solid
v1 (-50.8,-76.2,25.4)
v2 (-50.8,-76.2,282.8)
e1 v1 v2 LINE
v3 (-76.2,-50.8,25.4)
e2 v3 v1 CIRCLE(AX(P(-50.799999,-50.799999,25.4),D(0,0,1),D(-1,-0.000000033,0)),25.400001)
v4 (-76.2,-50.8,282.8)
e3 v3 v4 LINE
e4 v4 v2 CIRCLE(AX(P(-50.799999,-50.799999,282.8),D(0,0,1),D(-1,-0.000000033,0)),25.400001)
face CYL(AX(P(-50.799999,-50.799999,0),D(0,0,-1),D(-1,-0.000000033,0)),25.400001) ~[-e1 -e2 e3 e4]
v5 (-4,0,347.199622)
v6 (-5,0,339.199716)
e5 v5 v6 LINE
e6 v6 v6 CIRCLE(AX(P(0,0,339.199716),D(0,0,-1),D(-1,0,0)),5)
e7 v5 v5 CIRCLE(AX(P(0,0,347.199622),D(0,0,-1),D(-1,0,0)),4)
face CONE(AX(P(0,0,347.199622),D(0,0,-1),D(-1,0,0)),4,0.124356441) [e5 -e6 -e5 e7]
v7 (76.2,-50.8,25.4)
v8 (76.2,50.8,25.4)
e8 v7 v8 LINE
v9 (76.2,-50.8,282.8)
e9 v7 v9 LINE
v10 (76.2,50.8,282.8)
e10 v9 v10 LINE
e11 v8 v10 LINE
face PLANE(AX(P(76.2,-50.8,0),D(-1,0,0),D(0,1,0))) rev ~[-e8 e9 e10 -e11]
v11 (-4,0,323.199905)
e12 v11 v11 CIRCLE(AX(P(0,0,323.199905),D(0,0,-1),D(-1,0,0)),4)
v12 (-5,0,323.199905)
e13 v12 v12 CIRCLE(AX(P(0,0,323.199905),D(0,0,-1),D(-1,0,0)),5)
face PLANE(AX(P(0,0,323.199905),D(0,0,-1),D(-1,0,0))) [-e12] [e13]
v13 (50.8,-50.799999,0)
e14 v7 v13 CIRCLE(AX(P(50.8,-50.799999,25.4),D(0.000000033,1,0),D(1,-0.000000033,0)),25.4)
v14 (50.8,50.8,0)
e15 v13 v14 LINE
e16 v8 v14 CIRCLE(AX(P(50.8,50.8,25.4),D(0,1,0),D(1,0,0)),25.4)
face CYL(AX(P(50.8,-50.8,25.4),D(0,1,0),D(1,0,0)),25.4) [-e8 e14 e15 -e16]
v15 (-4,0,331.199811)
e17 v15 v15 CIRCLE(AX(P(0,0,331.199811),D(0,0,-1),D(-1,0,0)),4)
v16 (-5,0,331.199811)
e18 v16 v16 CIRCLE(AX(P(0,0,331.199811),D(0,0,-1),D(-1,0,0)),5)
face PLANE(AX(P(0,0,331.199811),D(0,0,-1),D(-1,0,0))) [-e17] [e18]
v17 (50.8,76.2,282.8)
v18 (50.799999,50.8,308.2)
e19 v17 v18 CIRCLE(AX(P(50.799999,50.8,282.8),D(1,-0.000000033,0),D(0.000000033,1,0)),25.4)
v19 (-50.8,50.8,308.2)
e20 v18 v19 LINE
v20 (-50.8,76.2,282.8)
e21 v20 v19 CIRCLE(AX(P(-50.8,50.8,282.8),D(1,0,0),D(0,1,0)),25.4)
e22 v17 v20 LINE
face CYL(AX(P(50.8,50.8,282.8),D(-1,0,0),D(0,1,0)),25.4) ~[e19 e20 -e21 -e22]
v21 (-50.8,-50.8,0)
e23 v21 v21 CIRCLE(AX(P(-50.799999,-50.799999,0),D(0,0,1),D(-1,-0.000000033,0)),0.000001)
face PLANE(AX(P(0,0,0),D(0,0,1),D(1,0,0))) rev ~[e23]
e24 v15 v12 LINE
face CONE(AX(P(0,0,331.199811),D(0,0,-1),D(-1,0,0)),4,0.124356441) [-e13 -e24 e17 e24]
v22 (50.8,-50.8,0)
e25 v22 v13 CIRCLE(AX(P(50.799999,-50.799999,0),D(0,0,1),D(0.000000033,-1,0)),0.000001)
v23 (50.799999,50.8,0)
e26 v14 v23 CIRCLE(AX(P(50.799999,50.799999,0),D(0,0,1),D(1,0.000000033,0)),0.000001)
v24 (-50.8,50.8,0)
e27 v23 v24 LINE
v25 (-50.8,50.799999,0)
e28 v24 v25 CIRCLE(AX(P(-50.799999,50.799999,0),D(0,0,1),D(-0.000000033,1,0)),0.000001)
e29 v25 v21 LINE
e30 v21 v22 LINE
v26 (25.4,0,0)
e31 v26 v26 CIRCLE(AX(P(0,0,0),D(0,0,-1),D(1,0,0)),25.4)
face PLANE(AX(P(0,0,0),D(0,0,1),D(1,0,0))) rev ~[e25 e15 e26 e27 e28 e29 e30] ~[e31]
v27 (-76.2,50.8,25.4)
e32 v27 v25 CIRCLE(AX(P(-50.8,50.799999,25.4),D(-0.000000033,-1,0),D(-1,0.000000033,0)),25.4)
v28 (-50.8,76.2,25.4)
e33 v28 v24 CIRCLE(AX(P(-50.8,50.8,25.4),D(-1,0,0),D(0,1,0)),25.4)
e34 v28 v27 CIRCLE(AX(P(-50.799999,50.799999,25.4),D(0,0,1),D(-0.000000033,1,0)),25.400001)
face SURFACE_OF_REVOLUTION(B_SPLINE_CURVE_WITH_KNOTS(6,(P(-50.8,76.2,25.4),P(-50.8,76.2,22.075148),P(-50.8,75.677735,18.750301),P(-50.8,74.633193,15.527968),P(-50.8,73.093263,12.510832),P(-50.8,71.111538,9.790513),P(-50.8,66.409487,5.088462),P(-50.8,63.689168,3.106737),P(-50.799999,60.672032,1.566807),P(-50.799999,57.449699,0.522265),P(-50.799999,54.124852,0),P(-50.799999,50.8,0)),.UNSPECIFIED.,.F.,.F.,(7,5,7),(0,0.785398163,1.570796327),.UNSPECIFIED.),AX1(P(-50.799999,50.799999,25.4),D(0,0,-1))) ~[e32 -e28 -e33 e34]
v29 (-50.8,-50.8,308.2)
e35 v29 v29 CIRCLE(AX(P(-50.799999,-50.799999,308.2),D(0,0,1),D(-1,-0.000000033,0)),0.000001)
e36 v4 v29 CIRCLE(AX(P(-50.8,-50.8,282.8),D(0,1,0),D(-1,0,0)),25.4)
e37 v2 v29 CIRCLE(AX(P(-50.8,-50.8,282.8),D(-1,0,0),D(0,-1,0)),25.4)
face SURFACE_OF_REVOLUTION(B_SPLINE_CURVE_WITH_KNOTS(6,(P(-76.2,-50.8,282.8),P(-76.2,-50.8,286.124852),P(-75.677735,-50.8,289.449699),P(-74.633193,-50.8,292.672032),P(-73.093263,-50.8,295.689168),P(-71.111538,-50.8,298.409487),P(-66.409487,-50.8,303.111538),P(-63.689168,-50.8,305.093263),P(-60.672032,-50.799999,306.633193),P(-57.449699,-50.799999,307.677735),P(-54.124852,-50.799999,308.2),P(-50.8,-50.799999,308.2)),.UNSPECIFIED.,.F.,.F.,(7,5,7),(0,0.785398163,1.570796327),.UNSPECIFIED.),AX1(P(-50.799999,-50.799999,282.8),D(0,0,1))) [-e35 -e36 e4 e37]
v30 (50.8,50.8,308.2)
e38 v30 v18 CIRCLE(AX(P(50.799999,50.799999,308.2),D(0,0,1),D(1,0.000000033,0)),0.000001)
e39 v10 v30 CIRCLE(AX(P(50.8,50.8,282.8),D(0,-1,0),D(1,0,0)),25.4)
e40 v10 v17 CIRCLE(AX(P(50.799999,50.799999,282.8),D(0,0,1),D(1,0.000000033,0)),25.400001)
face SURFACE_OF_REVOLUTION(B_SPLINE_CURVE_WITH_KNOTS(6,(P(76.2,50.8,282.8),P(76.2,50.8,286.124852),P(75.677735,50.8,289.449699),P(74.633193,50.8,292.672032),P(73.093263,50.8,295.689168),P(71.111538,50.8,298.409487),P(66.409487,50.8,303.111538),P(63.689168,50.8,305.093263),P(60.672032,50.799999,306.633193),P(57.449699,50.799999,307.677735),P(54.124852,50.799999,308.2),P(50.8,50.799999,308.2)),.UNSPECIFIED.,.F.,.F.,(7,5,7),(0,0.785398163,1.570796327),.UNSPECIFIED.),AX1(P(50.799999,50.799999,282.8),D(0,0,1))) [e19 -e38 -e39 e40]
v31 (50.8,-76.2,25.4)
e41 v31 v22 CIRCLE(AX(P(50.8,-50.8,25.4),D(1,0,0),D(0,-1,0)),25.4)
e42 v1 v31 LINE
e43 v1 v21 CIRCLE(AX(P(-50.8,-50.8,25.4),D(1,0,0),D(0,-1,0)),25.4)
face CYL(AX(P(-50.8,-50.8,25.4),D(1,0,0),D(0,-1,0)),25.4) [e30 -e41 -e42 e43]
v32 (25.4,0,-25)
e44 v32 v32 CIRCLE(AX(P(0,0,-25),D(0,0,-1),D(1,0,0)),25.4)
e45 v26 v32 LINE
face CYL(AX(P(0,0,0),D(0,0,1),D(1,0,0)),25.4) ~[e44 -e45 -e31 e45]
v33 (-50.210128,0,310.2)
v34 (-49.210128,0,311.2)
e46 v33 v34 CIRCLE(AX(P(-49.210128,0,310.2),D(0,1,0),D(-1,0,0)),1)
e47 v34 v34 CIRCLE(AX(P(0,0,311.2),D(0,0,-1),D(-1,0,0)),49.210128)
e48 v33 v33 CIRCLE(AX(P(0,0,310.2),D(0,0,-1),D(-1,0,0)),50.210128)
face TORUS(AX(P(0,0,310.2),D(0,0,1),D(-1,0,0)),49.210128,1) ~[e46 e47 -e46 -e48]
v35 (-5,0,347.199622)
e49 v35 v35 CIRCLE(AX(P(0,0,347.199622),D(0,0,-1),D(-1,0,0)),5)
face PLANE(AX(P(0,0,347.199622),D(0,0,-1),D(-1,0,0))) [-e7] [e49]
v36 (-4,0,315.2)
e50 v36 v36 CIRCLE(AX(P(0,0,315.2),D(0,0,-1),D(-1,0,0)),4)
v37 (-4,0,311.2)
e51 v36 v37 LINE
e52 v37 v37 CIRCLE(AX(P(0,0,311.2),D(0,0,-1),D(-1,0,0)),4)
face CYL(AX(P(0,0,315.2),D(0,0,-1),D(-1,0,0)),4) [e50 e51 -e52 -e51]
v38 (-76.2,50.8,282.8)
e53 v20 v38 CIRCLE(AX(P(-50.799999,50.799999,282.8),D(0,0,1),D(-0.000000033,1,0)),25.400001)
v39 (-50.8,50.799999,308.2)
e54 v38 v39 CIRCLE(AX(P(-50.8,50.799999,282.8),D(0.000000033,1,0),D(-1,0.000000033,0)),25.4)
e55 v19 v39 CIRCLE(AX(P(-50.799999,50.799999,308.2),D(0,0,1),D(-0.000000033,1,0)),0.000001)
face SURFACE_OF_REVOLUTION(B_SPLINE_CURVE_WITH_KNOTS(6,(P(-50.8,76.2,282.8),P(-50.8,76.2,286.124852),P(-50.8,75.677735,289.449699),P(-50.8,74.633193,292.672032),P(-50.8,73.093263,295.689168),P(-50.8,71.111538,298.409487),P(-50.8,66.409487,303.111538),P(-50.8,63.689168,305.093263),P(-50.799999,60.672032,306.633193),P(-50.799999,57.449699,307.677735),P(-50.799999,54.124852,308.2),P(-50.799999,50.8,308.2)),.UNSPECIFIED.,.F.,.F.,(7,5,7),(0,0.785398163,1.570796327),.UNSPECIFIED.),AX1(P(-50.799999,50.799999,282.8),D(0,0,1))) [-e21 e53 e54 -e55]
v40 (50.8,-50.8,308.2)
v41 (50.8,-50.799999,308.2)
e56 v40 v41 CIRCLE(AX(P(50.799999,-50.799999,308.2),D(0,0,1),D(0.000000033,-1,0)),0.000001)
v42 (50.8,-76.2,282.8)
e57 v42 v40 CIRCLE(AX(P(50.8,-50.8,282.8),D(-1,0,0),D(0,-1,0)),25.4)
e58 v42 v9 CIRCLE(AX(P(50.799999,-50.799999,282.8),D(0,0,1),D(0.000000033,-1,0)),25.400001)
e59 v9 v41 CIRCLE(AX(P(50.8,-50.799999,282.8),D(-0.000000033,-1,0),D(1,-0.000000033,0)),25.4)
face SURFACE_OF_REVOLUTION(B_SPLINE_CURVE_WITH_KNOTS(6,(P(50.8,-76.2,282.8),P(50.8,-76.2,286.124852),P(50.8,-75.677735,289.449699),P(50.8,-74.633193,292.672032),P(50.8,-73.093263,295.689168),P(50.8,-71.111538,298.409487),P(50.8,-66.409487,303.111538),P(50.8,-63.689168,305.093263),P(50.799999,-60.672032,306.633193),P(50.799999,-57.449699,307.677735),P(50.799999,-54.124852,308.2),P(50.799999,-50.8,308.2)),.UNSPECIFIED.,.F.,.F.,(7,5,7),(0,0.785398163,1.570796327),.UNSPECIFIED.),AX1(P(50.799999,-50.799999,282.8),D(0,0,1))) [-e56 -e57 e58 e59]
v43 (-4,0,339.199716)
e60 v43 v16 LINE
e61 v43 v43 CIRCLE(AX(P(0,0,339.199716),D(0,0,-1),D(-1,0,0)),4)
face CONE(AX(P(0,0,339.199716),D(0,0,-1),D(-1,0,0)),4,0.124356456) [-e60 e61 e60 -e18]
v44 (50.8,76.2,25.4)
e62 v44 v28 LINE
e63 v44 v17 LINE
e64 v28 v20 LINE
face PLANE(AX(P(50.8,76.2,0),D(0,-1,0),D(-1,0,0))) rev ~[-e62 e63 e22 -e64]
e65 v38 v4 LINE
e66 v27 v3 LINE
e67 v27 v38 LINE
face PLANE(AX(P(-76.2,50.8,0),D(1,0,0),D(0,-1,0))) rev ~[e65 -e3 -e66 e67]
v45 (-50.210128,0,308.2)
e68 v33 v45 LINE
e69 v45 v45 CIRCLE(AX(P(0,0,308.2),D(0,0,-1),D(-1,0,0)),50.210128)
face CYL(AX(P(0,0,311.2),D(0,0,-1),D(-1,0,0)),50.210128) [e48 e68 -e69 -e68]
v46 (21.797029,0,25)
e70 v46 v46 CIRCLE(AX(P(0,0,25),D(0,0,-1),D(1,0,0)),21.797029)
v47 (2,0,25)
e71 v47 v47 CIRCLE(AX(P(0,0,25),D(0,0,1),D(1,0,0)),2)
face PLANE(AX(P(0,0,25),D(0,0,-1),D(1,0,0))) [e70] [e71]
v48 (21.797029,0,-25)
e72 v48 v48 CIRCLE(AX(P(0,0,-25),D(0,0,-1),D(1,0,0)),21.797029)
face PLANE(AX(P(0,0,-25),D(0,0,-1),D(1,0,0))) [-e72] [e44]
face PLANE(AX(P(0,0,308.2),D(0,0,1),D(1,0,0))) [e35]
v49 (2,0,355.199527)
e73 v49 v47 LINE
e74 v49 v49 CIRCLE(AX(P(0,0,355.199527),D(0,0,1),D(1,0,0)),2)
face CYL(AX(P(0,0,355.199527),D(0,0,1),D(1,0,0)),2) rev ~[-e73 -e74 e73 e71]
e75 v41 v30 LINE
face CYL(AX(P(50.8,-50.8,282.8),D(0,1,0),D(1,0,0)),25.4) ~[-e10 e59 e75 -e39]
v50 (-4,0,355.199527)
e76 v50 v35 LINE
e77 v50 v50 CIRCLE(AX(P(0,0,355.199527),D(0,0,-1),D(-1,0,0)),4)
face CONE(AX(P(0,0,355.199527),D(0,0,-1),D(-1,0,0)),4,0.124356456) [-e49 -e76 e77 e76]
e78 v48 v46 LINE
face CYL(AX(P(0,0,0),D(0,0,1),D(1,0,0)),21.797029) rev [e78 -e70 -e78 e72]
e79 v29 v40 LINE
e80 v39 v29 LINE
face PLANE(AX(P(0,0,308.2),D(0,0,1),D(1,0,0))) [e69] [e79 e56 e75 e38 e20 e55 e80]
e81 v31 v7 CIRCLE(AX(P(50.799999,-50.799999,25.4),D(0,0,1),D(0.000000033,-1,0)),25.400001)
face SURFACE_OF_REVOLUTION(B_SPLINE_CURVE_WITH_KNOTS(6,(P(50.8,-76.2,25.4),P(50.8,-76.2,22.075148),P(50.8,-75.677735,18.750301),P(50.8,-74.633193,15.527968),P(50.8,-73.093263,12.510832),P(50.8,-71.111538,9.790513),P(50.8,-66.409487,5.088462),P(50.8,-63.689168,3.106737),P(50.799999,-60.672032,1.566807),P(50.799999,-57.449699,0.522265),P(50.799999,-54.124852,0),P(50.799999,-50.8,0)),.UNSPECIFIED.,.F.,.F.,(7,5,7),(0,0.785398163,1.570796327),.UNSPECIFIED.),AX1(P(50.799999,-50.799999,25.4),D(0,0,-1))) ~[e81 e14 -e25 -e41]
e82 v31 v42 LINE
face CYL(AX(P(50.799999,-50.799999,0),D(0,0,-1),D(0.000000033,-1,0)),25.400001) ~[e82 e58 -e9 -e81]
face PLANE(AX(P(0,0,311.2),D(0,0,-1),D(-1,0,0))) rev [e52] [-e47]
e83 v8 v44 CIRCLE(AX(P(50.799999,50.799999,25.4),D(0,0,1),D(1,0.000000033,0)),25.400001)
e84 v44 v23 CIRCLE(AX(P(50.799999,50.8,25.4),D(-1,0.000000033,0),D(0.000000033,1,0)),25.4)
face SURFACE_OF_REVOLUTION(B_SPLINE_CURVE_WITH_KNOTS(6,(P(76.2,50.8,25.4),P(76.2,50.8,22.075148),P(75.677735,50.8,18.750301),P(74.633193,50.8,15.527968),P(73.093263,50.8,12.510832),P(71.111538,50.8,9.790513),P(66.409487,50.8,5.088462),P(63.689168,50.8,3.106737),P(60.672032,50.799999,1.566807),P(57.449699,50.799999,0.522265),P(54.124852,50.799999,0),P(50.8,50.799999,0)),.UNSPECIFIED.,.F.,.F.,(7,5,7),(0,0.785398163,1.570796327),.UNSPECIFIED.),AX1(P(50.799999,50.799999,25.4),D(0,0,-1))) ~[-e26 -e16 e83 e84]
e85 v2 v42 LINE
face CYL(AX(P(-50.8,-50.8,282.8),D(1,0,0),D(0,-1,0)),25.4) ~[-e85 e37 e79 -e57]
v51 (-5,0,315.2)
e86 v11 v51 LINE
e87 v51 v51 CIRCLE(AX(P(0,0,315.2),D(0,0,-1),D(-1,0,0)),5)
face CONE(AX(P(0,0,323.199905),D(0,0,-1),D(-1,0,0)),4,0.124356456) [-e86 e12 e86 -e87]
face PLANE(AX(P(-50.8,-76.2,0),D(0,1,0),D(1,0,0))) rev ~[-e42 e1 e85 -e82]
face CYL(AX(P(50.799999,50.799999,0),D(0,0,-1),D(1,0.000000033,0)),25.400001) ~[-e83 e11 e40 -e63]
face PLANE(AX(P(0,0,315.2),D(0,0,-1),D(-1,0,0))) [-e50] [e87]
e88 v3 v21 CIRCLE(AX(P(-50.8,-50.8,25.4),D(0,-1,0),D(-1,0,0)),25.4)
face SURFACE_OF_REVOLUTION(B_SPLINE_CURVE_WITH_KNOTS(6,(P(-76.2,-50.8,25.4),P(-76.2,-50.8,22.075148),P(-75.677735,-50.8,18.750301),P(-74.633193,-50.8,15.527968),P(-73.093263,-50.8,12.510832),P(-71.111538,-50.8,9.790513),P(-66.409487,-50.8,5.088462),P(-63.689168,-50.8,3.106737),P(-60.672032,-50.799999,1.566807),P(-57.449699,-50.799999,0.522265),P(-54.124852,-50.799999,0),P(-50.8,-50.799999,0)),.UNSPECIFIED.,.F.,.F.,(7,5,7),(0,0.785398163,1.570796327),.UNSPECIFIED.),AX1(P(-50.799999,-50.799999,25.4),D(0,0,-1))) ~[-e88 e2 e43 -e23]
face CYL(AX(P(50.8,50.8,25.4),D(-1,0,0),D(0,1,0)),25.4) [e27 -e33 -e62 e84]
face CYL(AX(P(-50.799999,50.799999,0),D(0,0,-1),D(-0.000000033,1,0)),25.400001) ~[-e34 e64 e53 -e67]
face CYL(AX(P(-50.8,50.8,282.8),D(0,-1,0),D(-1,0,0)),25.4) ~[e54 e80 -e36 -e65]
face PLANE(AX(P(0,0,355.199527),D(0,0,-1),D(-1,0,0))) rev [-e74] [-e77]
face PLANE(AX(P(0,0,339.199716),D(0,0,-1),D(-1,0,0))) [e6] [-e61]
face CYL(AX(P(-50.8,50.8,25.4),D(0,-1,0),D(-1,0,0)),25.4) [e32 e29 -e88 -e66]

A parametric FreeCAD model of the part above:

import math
import FreeCAD as App
import Part
import Sketcher
from FreeCAD import Vector
Q = App.Units.Quantity


def edges_at(feature, points):
    """Names of the edges that pass closest to the given points."""
    edges = feature.Shape.Edges
    near = lambda p: min(range(len(edges)), key=lambda i: edges[i].distToShape(Part.Vertex(*p))[0])
    return sorted({f"Edge{near(p) + 1}" for p in points})


def add_polygon(sketch, points):
    """Adds a closed chain of lines whose ends are joined by coincident constraints."""
    first, n = sketch.GeometryCount, len(points)
    for a, b in zip(points, points[1:] + points[:1]):
        sketch.addGeometry(Part.LineSegment(App.Vector(*a, 0), App.Vector(*b, 0)), False)
    for i in range(n):
        sketch.addConstraint(Sketcher.Constraint("Coincident", first + i, 2, first + (i + 1) % n, 1))

doc = App.newDocument("Part")
body = doc.addObject("PartDesign::Body", "Body")

# Sketch on XY plane
sketch1 = body.newObject("Sketcher::SketchObject", "Sketch")
sketch1.AttachmentSupport = (doc.getObject("XY_Plane"), [""])
sketch1.MapMode = "FlatFace"
sketch1.addGeometry(Part.LineSegment(Vector(-51, -76, 0), Vector(51, -76, 0)), False)
sketch1.addGeometry(Part.ArcOfCircle(Part.Circle(Vector(51, -51, 0), Vector(0, 0, 1), 25), math.radians(-90), math.radians(0)), False)
sketch1.addGeometry(Part.LineSegment(Vector(76, -51, 0), Vector(76, 51, 0)), False)
sketch1.addGeometry(Part.ArcOfCircle(Part.Circle(Vector(51, 51, 0), Vector(0, 0, 1), 25), math.radians(0), math.radians(90)), False)
sketch1.addGeometry(Part.LineSegment(Vector(51, 76, 0), Vector(-51, 76, 0)), False)
sketch1.addGeometry(Part.ArcOfCircle(Part.Circle(Vector(-51, 51, 0), Vector(0, 0, 1), 25), math.radians(90), math.radians(180)), False)
sketch1.addGeometry(Part.LineSegment(Vector(-76, 51, 0), Vector(-76, -51, 0)), False)
sketch1.addGeometry(Part.ArcOfCircle(Part.Circle(Vector(-51, -51, 0), Vector(0, 0, 1), 25), math.radians(-180), math.radians(-90)), False)
sketch1.addConstraint(Sketcher.Constraint("Tangent", 0, 2, 1, 1))
sketch1.addConstraint(Sketcher.Constraint("Tangent", 1, 2, 2, 1))
sketch1.addConstraint(Sketcher.Constraint("Tangent", 2, 2, 3, 1))
sketch1.addConstraint(Sketcher.Constraint("Tangent", 3, 2, 4, 1))
sketch1.addConstraint(Sketcher.Constraint("Tangent", 4, 2, 5, 1))
sketch1.addConstraint(Sketcher.Constraint("Tangent", 5, 2, 6, 1))
sketch1.addConstraint(Sketcher.Constraint("Tangent", 6, 2, 7, 1))
sketch1.addConstraint(Sketcher.Constraint("Tangent", 7, 2, 0, 1))
sketch1.addConstraint(Sketcher.Constraint("Horizontal", 0))
sketch1.addConstraint(Sketcher.Constraint("Vertical", 2))
sketch1.addConstraint(Sketcher.Constraint("Horizontal", 4))
sketch1.addConstraint(Sketcher.Constraint("Vertical", 6))
sketch1.addConstraint(Sketcher.Constraint("Equal", 1, 3))
sketch1.addConstraint(Sketcher.Constraint("Equal", 3, 5))
sketch1.addConstraint(Sketcher.Constraint("Equal", 5, 7))
sketch1.addConstraint(Sketcher.Constraint("Symmetric", 1, 3, 5, 3, -1, 1))
sketch1.addConstraint(Sketcher.Constraint("Equal", 4, 2))
sketch1.addConstraint(Sketcher.Constraint("Radius", 1, Q("25.400001 mm")))
sketch1.addConstraint(Sketcher.Constraint("DistanceX", 0, 1, 0, 2, Q("101.6 mm")))
pad1 = body.newObject("PartDesign::Pad", "Pad")
pad1.Profile = sketch1
pad1.Length = 308.2
doc.recompute()

fillet = body.newObject("PartDesign::Fillet", "Fillet")
fillet.Base = (pad1, edges_at(pad1, [(0, -76.2, 308.2), (0, -76.2, 0)]))
fillet.Radius = 25.4

# Sketch on XY plane
sketch2 = body.newObject("Sketcher::SketchObject", "Sketch001")
sketch2.AttachmentSupport = (doc.getObject("XY_Plane"), [""])
sketch2.MapMode = "FlatFace"
sketch2.addGeometry(Part.Circle(Vector(0, 0, 0), Vector(0, 0, 1), 25), False)
sketch2.addGeometry(Part.Circle(Vector(0, 0, 0), Vector(0, 0, 1), 22), False)
sketch2.addConstraint(Sketcher.Constraint("Coincident", 0, 3, -1, 1))
sketch2.addConstraint(Sketcher.Constraint("Coincident", 1, 3, -1, 1))
sketch2.addConstraint(Sketcher.Constraint("Diameter", 0, Q("50.8 mm")))
sketch2.addConstraint(Sketcher.Constraint("Diameter", 1, Q("43.594058 mm")))
pad2 = body.newObject("PartDesign::Pad", "Pad001")
pad2.Profile = sketch2
pad2.Length = 25
pad2.Reversed = True

# Sketch on XY plane
sketch3 = body.newObject("Sketcher::SketchObject", "Sketch002")
sketch3.AttachmentSupport = (doc.getObject("XY_Plane"), [""])
sketch3.MapMode = "FlatFace"
sketch3.addGeometry(Part.Circle(Vector(0, 0, 0), Vector(0, 0, 1), 22), False)
sketch3.addConstraint(Sketcher.Constraint("Coincident", 0, 3, -1, 1))
sketch3.addConstraint(Sketcher.Constraint("Diameter", 0, Q("43.594058 mm")))
pocket1 = body.newObject("PartDesign::Pocket", "Pocket")
pocket1.Profile = sketch3
pocket1.Length = 25
pocket1.Reversed = True

# Sketch on XZ plane
sketch4 = body.newObject("Sketcher::SketchObject", "Sketch003")
sketch4.AttachmentSupport = (doc.getObject("XZ_Plane"), [""])
sketch4.MapMode = "FlatFace"
add_polygon(sketch4, [(-50.210128, 308.2), (0, 308.2), (0, 355.199527), (-4, 355.199527), (-5, 347.199622), (-4, 347.199622), (-5, 339.199716), (-4, 339.199716), (-5, 331.199811), (-4, 331.199811), (-5, 323.199905), (-4, 323.199905), (-5, 315.2), (-4, 315.2), (-4, 311.2), (-50.210128, 311.2)])  # lines 0-15
sketch4.addConstraint(Sketcher.Constraint("Horizontal", 0))
sketch4.addConstraint(Sketcher.Constraint("Vertical", 1))
sketch4.addConstraint(Sketcher.Constraint("Horizontal", 2))
sketch4.addConstraint(Sketcher.Constraint("Horizontal", 4))
sketch4.addConstraint(Sketcher.Constraint("Horizontal", 6))
sketch4.addConstraint(Sketcher.Constraint("Horizontal", 8))
sketch4.addConstraint(Sketcher.Constraint("Horizontal", 10))
sketch4.addConstraint(Sketcher.Constraint("Horizontal", 12))
sketch4.addConstraint(Sketcher.Constraint("Vertical", 13))
sketch4.addConstraint(Sketcher.Constraint("Horizontal", 14))
sketch4.addConstraint(Sketcher.Constraint("Vertical", 15))
sketch4.addConstraint(Sketcher.Constraint("PointOnObject", 0, 2, -2))
sketch4.addConstraint(Sketcher.Constraint("Parallel", 3, 5))
sketch4.addConstraint(Sketcher.Constraint("Parallel", 5, 7))
sketch4.addConstraint(Sketcher.Constraint("Parallel", 7, 9))
sketch4.addConstraint(Sketcher.Constraint("Parallel", 9, 11))
sketch4.addConstraint(Sketcher.Constraint("Vertical", 2, 2, 4, 2))
sketch4.addConstraint(Sketcher.Constraint("Vertical", 3, 2, 5, 2))
sketch4.addConstraint(Sketcher.Constraint("Vertical", 4, 2, 6, 2))
sketch4.addConstraint(Sketcher.Constraint("Vertical", 5, 2, 7, 2))
sketch4.addConstraint(Sketcher.Constraint("Vertical", 6, 2, 8, 2))
sketch4.addConstraint(Sketcher.Constraint("Vertical", 7, 2, 9, 2))
sketch4.addConstraint(Sketcher.Constraint("Vertical", 8, 2, 10, 2))
sketch4.addConstraint(Sketcher.Constraint("Vertical", 9, 2, 11, 2))
sketch4.addConstraint(Sketcher.Constraint("Vertical", 10, 2, 12, 2))
sketch4.addConstraint(Sketcher.Constraint("Equal", 2, 13))
sketch4.addConstraint(Sketcher.Constraint("DistanceX", 2, 2, 2, 1, Q("4 mm")))
sketch4.addConstraint(Sketcher.Constraint("DistanceX", 4, 1, 4, 2, Q("1 mm")))
sketch4.addConstraint(Sketcher.Constraint("DistanceY", 15, 2, 15, 1, Q("3 mm")))
sketch4.addConstraint(Sketcher.Constraint("DistanceY", -1, 1, 0, 2, Q("308.2 mm")))
sketch4.addConstraint(Sketcher.Constraint("DistanceX", 0, 1, 0, 2, Q("50.210128 mm")))
sketch4.addConstraint(Sketcher.Constraint("DistanceY", 1, 1, 1, 2, Q("46.999527 mm")))
revolution = body.newObject("PartDesign::Revolution", "Revolution")
revolution.Profile = sketch4
revolution.ReferenceAxis = (sketch4, ["V_Axis"])
revolution.Angle = 360

# Sketch on XY plane
sketch5 = body.newObject("Sketcher::SketchObject", "Sketch004")
sketch5.AttachmentSupport = (doc.getObject("XY_Plane"), [""])
sketch5.MapMode = "FlatFace"
sketch5.AttachmentOffset = App.Placement(Vector(0, 0, 355.199527), App.Rotation())
sketch5.addGeometry(Part.Circle(Vector(0, 0, 0), Vector(0, 0, 1), 2), False)
sketch5.addConstraint(Sketcher.Constraint("Coincident", 0, 3, -1, 1))
sketch5.addConstraint(Sketcher.Constraint("Diameter", 0, Q("4 mm")))
pocket2 = body.newObject("PartDesign::Pocket", "Pocket001")
pocket2.Profile = sketch5
pocket2.Type = "ThroughAll"
doc.recompute()

fillet2 = body.newObject("PartDesign::Fillet", "Fillet001")
fillet2.Base = (pocket2, edges_at(pocket2, [(50.21, 0, 311.2)]))
fillet2.Radius = 1

doc.recompute()
